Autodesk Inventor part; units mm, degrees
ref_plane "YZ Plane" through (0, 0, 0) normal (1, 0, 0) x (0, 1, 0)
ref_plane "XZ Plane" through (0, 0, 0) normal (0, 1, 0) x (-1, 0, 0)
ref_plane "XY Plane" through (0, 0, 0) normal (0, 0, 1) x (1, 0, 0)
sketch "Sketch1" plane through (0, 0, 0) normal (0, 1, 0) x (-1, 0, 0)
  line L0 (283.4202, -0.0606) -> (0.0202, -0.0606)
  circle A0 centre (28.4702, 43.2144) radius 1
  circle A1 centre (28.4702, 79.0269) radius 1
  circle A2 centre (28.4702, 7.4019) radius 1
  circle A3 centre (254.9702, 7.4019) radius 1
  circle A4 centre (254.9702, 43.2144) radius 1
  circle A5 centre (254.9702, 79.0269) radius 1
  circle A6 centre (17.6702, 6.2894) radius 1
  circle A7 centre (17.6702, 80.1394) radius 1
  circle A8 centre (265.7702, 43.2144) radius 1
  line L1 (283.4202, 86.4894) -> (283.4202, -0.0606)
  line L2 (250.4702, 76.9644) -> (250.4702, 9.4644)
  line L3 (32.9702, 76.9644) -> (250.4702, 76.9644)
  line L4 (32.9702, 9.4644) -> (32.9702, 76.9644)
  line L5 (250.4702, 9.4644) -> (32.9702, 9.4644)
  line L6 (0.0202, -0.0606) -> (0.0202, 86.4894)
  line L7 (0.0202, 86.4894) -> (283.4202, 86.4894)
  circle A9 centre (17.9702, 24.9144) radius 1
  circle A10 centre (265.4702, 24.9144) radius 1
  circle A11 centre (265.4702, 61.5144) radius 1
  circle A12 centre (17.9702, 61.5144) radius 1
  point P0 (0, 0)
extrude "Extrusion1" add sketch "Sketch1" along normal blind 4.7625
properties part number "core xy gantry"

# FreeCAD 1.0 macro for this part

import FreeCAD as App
import Part
import Sketcher

V = App.Vector

doc = App.newDocument("Part")
body = doc.addObject("PartDesign::Body", "Body")

sketch1 = body.newObject("Sketcher::SketchObject", "Sketch")
sketch1.AttachmentSupport = (doc.getObject("XZ_Plane"), [""])
sketch1.MapMode = "FlatFace"
sketch1.addGeometry(Part.LineSegment(V(0, -0.1, 0), V(-283.4, -0.1, 0)), False)
sketch1.addGeometry(Part.LineSegment(V(-283.4, -0.1, 0), V(-283.4, 86.5, 0)), False)
sketch1.addGeometry(Part.LineSegment(V(-283.4, 86.5, 0), V(0, 86.5, 0)), False)
sketch1.addGeometry(Part.LineSegment(V(0, 86.5, 0), V(0, -0.1, 0)), False)
sketch1.addGeometry(Part.Circle(V(-17.7, 6.3, 0), V(0, 0, 1), 1), False)
sketch1.addGeometry(Part.Circle(V(-28.5, 7.4, 0), V(0, 0, 1), 1), False)
sketch1.addGeometry(Part.Circle(V(-18, 24.9, 0), V(0, 0, 1), 1), False)
sketch1.addGeometry(Part.Circle(V(-255, 7.4, 0), V(0, 0, 1), 1), False)
sketch1.addGeometry(Part.Circle(V(-265.5, 24.9, 0), V(0, 0, 1), 1), False)
sketch1.addGeometry(Part.Circle(V(-28.5, 43.2, 0), V(0, 0, 1), 1), False)
sketch1.addGeometry(Part.Circle(V(-18, 61.5, 0), V(0, 0, 1), 1), False)
sketch1.addGeometry(Part.Circle(V(-17.7, 80.1, 0), V(0, 0, 1), 1), False)
sketch1.addGeometry(Part.Circle(V(-28.5, 79, 0), V(0, 0, 1), 1), False)
sketch1.addGeometry(Part.LineSegment(V(-33, 77, 0), V(-250.5, 77, 0)), False)
sketch1.addGeometry(Part.LineSegment(V(-250.5, 77, 0), V(-250.5, 9.5, 0)), False)
sketch1.addGeometry(Part.LineSegment(V(-250.5, 9.5, 0), V(-33, 9.5, 0)), False)
sketch1.addGeometry(Part.LineSegment(V(-33, 9.5, 0), V(-33, 77, 0)), False)
sketch1.addGeometry(Part.Circle(V(-255, 43.2, 0), V(0, 0, 1), 1), False)
sketch1.addGeometry(Part.Circle(V(-265.8, 43.2, 0), V(0, 0, 1), 1), False)
sketch1.addGeometry(Part.Circle(V(-265.5, 61.5, 0), V(0, 0, 1), 1), False)
sketch1.addGeometry(Part.Circle(V(-255, 79, 0), V(0, 0, 1), 1), False)
sketch1.addConstraint(Sketcher.Constraint("Coincident", 0, 2, 1, 1))
sketch1.addConstraint(Sketcher.Constraint("Coincident", 1, 2, 2, 1))
sketch1.addConstraint(Sketcher.Constraint("Coincident", 2, 2, 3, 1))
sketch1.addConstraint(Sketcher.Constraint("Coincident", 3, 2, 0, 1))
sketch1.addConstraint(Sketcher.Constraint("Coincident", 13, 2, 14, 1))
sketch1.addConstraint(Sketcher.Constraint("Coincident", 14, 2, 15, 1))
sketch1.addConstraint(Sketcher.Constraint("Coincident", 15, 2, 16, 1))
sketch1.addConstraint(Sketcher.Constraint("Coincident", 16, 2, 13, 1))
sketch1.addConstraint(Sketcher.Constraint("Horizontal", 0))
sketch1.addConstraint(Sketcher.Constraint("Vertical", 1))
sketch1.addConstraint(Sketcher.Constraint("Horizontal", 2))
sketch1.addConstraint(Sketcher.Constraint("Vertical", 3))
sketch1.addConstraint(Sketcher.Constraint("Horizontal", 13))
sketch1.addConstraint(Sketcher.Constraint("Vertical", 14))
sketch1.addConstraint(Sketcher.Constraint("Horizontal", 15))
sketch1.addConstraint(Sketcher.Constraint("Vertical", 16))
sketch1.addConstraint(Sketcher.Constraint("Equal", 4, 5))
sketch1.addConstraint(Sketcher.Constraint("Equal", 5, 6))
sketch1.addConstraint(Sketcher.Constraint("Equal", 6, 7))
sketch1.addConstraint(Sketcher.Constraint("Equal", 7, 8))
sketch1.addConstraint(Sketcher.Constraint("Equal", 8, 9))
sketch1.addConstraint(Sketcher.Constraint("Equal", 9, 10))
sketch1.addConstraint(Sketcher.Constraint("Equal", 10, 11))
sketch1.addConstraint(Sketcher.Constraint("Equal", 11, 12))
sketch1.addConstraint(Sketcher.Constraint("Equal", 12, 17))
sketch1.addConstraint(Sketcher.Constraint("Equal", 17, 18))
sketch1.addConstraint(Sketcher.Constraint("Equal", 18, 19))
sketch1.addConstraint(Sketcher.Constraint("Equal", 19, 20))
sketch1.addConstraint(Sketcher.Constraint("Horizontal", 5, 3, 7, 3))
sketch1.addConstraint(Sketcher.Constraint("Horizontal", 6, 3, 8, 3))
sketch1.addConstraint(Sketcher.Constraint("Horizontal", 9, 3, 17, 3))
sketch1.addConstraint(Sketcher.Constraint("Horizontal", 17, 3, 18, 3))
sketch1.addConstraint(Sketcher.Constraint("Horizontal", 10, 3, 19, 3))
sketch1.addConstraint(Sketcher.Constraint("Horizontal", 12, 3, 20, 3))
sketch1.addConstraint(Sketcher.Constraint("Vertical", 5, 3, 9, 3))
sketch1.addConstraint(Sketcher.Constraint("Vertical", 6, 3, 10, 3))
sketch1.addConstraint(Sketcher.Constraint("Vertical", 4, 3, 11, 3))
sketch1.addConstraint(Sketcher.Constraint("Vertical", 9, 3, 12, 3))
sketch1.addConstraint(Sketcher.Constraint("Vertical", 7, 3, 17, 3))
sketch1.addConstraint(Sketcher.Constraint("Vertical", 8, 3, 19, 3))
sketch1.addConstraint(Sketcher.Constraint("Vertical", 17, 3, 20, 3))
sketch1.addConstraint(Sketcher.Constraint("Diameter", 4, 2.0))
sketch1.addConstraint(Sketcher.Constraint("DistanceX", 0, 2, 0, 1, 283.4))
sketch1.addConstraint(Sketcher.Constraint("DistanceX", 13, 2, 13, 1, 217.5))
sketch1.addConstraint(Sketcher.Constraint("DistanceY", 14, 2, 14, 1, 67.5))
sketch1.addConstraint(Sketcher.Constraint("DistanceX", 7, 3, 6, 3, 237.0))
sketch1.addConstraint(Sketcher.Constraint("DistanceX", 8, 3, 5, 3, 237.0))
sketch1.addConstraint(Sketcher.Constraint("DistanceX", 19, 3, 13, 2, 15.0))
sketch1.addConstraint(Sketcher.Constraint("DistanceX", 15, 2, 6, 3, 15.0))
sketch1.addConstraint(Sketcher.Constraint("DistanceY", 1, 1, 1, 2, 86.55))
sketch1.addConstraint(Sketcher.Constraint("DistanceX", 5, 3, 4, 3, 10.8))
sketch1.addConstraint(Sketcher.Constraint("DistanceY", 6, 3, 9, 3, 18.3))
sketch1.addConstraint(Sketcher.Constraint("DistanceY", 9, 3, 10, 3, 18.3))
sketch1.addConstraint(Sketcher.Constraint("DistanceX", 18, 3, 17, 3, 10.8))
sketch1.addConstraint(Sketcher.Constraint("DistanceY", 4, 3, 11, 3, 73.85))
sketch1.addConstraint(Sketcher.Constraint("DistanceX", 0, 2, 7, 3, 28.45))
sketch1.addConstraint(Sketcher.Constraint("DistanceY", 11, 3, 2, 2, 6.35))
sketch1.addConstraint(Sketcher.Constraint("DistanceY", 19, 3, 13, 2, 15.45))
sketch1.addConstraint(Sketcher.Constraint("DistanceY", -1, 1, 5, 3, 7.402))
sketch1.addConstraint(Sketcher.Constraint("DistanceY", -1, 1, 12, 3, 79.027))
sketch1.addConstraint(Sketcher.Constraint("DistanceY", 4, 3, 6, 3, 18.625))
sketch1.addConstraint(Sketcher.Constraint("DistanceX", 4, 3, -1, 1, 17.6702))
sketch1.addConstraint(Sketcher.Constraint("DistanceY", -1, 1, 4, 3, 6.2894))
pad1 = body.newObject("PartDesign::Pad", "Pad")
pad1.Profile = sketch1
pad1.Length = 4.7625
pad1.Reversed = True

doc.recompute()
